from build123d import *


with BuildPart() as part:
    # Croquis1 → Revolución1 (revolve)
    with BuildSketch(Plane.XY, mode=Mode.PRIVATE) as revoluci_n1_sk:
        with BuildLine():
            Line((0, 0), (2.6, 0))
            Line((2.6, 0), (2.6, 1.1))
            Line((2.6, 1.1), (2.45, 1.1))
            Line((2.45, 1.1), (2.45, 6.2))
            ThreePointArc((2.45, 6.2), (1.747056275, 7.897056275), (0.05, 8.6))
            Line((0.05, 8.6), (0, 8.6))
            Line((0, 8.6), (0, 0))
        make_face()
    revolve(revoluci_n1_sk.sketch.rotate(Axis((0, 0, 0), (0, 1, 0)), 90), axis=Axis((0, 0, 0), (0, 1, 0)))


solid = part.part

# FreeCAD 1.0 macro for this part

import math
import FreeCAD as App
import Part
import Sketcher

doc = App.newDocument("Part")
body = doc.addObject("PartDesign::Body", "Body")

sketch1 = body.newObject("Sketcher::SketchObject", "Sketch")
sketch1.AttachmentSupport = (doc.getObject("XY_Plane"), [""])
sketch1.MapMode = "FlatFace"
sketch1.addGeometry([
    Part.LineSegment(App.Vector(0, 0, 0), App.Vector(2.6, 0, 0)),
    Part.LineSegment(App.Vector(2.6, 0, 0), App.Vector(2.6, 1.1, 0)),
    Part.LineSegment(App.Vector(2.6, 1.1, 0), App.Vector(2.45, 1.1, 0)),
    Part.LineSegment(App.Vector(2.45, 1.1, 0), App.Vector(2.45, 6.2, 0)),
    Part.ArcOfCircle(Part.Circle(App.Vector(0.05, 6.2, 0), App.Vector(0, 0, 1), 2.4), math.radians(0), math.radians(90)),
    Part.LineSegment(App.Vector(0.05, 8.6, 0), App.Vector(0, 8.6, 0)),
    Part.LineSegment(App.Vector(0, 8.6, 0), App.Vector(0, 0, 0)),
], False)
sketch1.addConstraint([
    Sketcher.Constraint("Coincident", 0, 2, 1, 1),
    Sketcher.Constraint("Coincident", 1, 2, 2, 1),
    Sketcher.Constraint("Coincident", 2, 2, 3, 1),
    Sketcher.Constraint("Tangent", 3, 2, 4, 1),
    Sketcher.Constraint("Tangent", 4, 2, 5, 1),
    Sketcher.Constraint("Coincident", 5, 2, 6, 1),
    Sketcher.Constraint("Coincident", 6, 2, 0, 1),
    Sketcher.Constraint("Horizontal", 0),
    Sketcher.Constraint("Vertical", 1),
    Sketcher.Constraint("Horizontal", 2),
    Sketcher.Constraint("Vertical", 3),
    Sketcher.Constraint("Horizontal", 5),
    Sketcher.Constraint("Vertical", 6),
    Sketcher.Constraint("Coincident", 6, 2, -1, 1),
    Sketcher.Constraint("Radius", 4, 2.4),
    Sketcher.Constraint("DistanceX", 0, 1, 0, 2, 2.6),
    Sketcher.Constraint("DistanceY", 1, 1, 1, 2, 1.1),
    Sketcher.Constraint("DistanceY", 3, 1, 3, 2, 5.1),
    Sketcher.Constraint("DistanceX", 2, 2, 2, 1, 0.15),
])
revolution = body.newObject("PartDesign::Revolution", "Revolution")
revolution.Profile = sketch1
revolution.ReferenceAxis = (sketch1, ["V_Axis"])
revolution.Angle = 360

doc.recompute()
